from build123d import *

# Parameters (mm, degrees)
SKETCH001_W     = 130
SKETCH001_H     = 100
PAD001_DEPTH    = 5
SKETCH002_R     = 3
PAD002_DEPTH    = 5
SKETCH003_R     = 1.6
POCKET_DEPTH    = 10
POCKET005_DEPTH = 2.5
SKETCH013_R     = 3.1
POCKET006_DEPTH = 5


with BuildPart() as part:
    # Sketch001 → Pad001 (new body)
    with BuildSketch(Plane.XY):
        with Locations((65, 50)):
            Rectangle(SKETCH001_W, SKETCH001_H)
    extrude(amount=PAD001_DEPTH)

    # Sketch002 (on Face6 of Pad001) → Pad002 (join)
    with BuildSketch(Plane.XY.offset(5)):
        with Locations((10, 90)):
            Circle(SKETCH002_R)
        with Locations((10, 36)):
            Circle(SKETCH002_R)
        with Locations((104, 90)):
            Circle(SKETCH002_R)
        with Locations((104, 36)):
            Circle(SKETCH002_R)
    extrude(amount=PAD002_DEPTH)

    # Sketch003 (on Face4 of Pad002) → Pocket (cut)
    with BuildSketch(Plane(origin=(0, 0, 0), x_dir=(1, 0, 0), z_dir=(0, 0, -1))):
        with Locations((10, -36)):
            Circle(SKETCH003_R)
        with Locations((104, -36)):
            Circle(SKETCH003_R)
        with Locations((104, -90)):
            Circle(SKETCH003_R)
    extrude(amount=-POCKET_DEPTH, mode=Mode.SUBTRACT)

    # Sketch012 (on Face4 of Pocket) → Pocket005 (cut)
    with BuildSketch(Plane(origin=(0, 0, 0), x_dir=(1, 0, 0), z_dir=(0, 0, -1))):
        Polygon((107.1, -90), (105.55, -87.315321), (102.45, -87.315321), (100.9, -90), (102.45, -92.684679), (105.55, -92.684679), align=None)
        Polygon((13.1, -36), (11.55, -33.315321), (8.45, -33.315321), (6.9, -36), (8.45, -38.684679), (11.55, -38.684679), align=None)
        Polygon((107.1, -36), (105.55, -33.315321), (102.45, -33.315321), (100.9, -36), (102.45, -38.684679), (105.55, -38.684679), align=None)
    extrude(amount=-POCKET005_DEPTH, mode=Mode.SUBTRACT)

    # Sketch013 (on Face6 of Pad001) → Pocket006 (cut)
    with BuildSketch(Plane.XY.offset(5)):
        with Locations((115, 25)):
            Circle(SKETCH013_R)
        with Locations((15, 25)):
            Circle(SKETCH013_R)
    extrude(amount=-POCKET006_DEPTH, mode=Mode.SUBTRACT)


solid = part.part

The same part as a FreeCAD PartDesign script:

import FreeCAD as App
import Part
import Sketcher
from FreeCAD import Vector
Q = App.Units.Quantity


def add_polygon(sketch, points):
    """Adds a closed chain of lines whose ends are joined by coincident constraints."""
    first, n = sketch.GeometryCount, len(points)
    for a, b in zip(points, points[1:] + points[:1]):
        sketch.addGeometry(Part.LineSegment(App.Vector(*a, 0), App.Vector(*b, 0)), False)
    for i in range(n):
        sketch.addConstraint(Sketcher.Constraint("Coincident", first + i, 2, first + (i + 1) % n, 1))

doc = App.newDocument("Part")
body = doc.addObject("PartDesign::Body", "Body")

sketch1 = body.newObject("Sketcher::SketchObject", "Sketch")
sketch1.AttachmentSupport = (doc.getObject("XY_Plane"), [""])
sketch1.MapMode = "FlatFace"
add_polygon(sketch1, [(0, 100), (0, 0), (130, 0), (130, 100)])
sketch1.addConstraint([
    Sketcher.Constraint("Vertical", 0),
    Sketcher.Constraint("Horizontal", 1),
    Sketcher.Constraint("Vertical", 2),
    Sketcher.Constraint("Horizontal", 3),
    Sketcher.Constraint("Coincident", 0, 2, -1, 1),
    Sketcher.Constraint("DistanceX", 1, 1, 1, 2, 130.0),
    Sketcher.Constraint("DistanceY", 0, 2, 0, 1, 100.0),
])
pad1 = body.newObject("PartDesign::Pad", "Pad")
pad1.Profile = sketch1
pad1.Length = 5

sketch2 = body.newObject("Sketcher::SketchObject", "Sketch001")
sketch2.AttachmentSupport = (doc.getObject("XY_Plane"), [""])
sketch2.MapMode = "FlatFace"
sketch2.AttachmentOffset = App.Placement(Vector(0, 0, 5), App.Rotation())
sketch2.addGeometry([
    Part.Circle(Vector(10, 90, 0), Vector(0, 0, 1), 3),
    Part.Circle(Vector(10, 36, 0), Vector(0, 0, 1), 3),
    Part.Circle(Vector(104, 90, 0), Vector(0, 0, 1), 3),
    Part.Circle(Vector(104, 36, 0), Vector(0, 0, 1), 3),
], False)
sketch2.addConstraint([
    Sketcher.Constraint("Equal", 0, 1),
    Sketcher.Constraint("Equal", 1, 2),
    Sketcher.Constraint("Equal", 2, 3),
    Sketcher.Constraint("Horizontal", 0, 3, 2, 3),
    Sketcher.Constraint("Horizontal", 1, 3, 3, 3),
    Sketcher.Constraint("Vertical", 0, 3, 1, 3),
    Sketcher.Constraint("Vertical", 2, 3, 3, 3),
    Sketcher.Constraint("Diameter", 0, 6.0),
    Sketcher.Constraint("DistanceX", -1, 1, 0, 3, 10.0),
    Sketcher.Constraint("DistanceY", -1, 1, 0, 3, 90.0),
    Sketcher.Constraint("DistanceY", -1, 1, 1, 3, 36.0),
    Sketcher.Constraint("DistanceX", -1, 1, 2, 3, 104.0),
])
pad2 = body.newObject("PartDesign::Pad", "Pad001")
pad2.Profile = sketch2
pad2.Length = 5

sketch3 = body.newObject("Sketcher::SketchObject", "Sketch002")
sketch3.AttachmentSupport = (doc.getObject("XY_Plane"), [""])
sketch3.MapMode = "FlatFace"
sketch3.addGeometry([
    Part.Circle(Vector(10, 36, 0), Vector(0, 0, 1), 1.6),
    Part.Circle(Vector(104, 36, 0), Vector(0, 0, 1), 1.6),
    Part.Circle(Vector(104, 90, 0), Vector(0, 0, 1), 1.6),
], False)
sketch3.addConstraint([
    Sketcher.Constraint("Equal", 0, 1),
    Sketcher.Constraint("Equal", 1, 2),
    Sketcher.Constraint("Horizontal", 0, 3, 1, 3),
    Sketcher.Constraint("Vertical", 1, 3, 2, 3),
    Sketcher.Constraint("Diameter", 0, 3.2),
    Sketcher.Constraint("DistanceX", -1, 1, 0, 3, 10.0),
    Sketcher.Constraint("DistanceY", -1, 1, 0, 3, 36.0),
    Sketcher.Constraint("DistanceX", -1, 1, 1, 3, 104.0),
    Sketcher.Constraint("DistanceY", -1, 1, 2, 3, 90.0),
])
pocket1 = body.newObject("PartDesign::Pocket", "Pocket")
pocket1.Profile = sketch3
pocket1.Length = 10
pocket1.Reversed = True

sketch4 = body.newObject("Sketcher::SketchObject", "Sketch003")
sketch4.AttachmentSupport = (doc.getObject("XY_Plane"), [""])
sketch4.MapMode = "FlatFace"
add_polygon(sketch4, [(107.1, 90), (105.5, 87.3), (102.5, 87.3), (100.9, 90), (102.5, 92.7), (105.5, 92.7)])
add_polygon(sketch4, [(13.1, 36), (11.6, 33.3), (8.4, 33.3), (6.9, 36), (8.4, 38.7), (11.6, 38.7)])
add_polygon(sketch4, [(107.1, 36), (105.5, 33.3), (102.5, 33.3), (100.9, 36), (102.5, 38.7), (105.5, 38.7)])
sketch4.addConstraint([
    Sketcher.Constraint("Horizontal", 1),
    Sketcher.Constraint("Horizontal", 4),
    Sketcher.Constraint("Horizontal", 7),
    Sketcher.Constraint("Horizontal", 10),
    Sketcher.Constraint("Horizontal", 13),
    Sketcher.Constraint("Horizontal", 16),
    Sketcher.Constraint("Parallel", 0, 3),
    Sketcher.Constraint("Parallel", 2, 5),
    Sketcher.Constraint("Parallel", 3, 6),
    Sketcher.Constraint("Parallel", 5, 8),
    Sketcher.Constraint("Parallel", 6, 9),
    Sketcher.Constraint("Parallel", 8, 11),
    Sketcher.Constraint("Parallel", 9, 12),
    Sketcher.Constraint("Parallel", 11, 14),
    Sketcher.Constraint("Parallel", 12, 15),
    Sketcher.Constraint("Parallel", 14, 17),
    Sketcher.Constraint("Horizontal", 2, 2, 5, 2),
    Sketcher.Constraint("Horizontal", 8, 2, 11, 2),
    Sketcher.Constraint("Horizontal", 7, 2, 12, 2),
    Sketcher.Constraint("Horizontal", 11, 2, 14, 2),
    Sketcher.Constraint("Horizontal", 10, 2, 15, 2),
    Sketcher.Constraint("Horizontal", 14, 2, 17, 2),
    Sketcher.Constraint("Vertical", 1, 2, 3, 2),
    Sketcher.Constraint("Vertical", 0, 2, 4, 2),
    Sketcher.Constraint("Vertical", 7, 2, 9, 2),
    Sketcher.Constraint("Vertical", 4, 2, 12, 2),
    Sketcher.Constraint("Vertical", 3, 2, 13, 2),
    Sketcher.Constraint("Vertical", 2, 2, 14, 2),
    Sketcher.Constraint("Equal", 4, 7),
    Sketcher.Constraint("Angle", 0, Q("-119.999998 deg")),
    Sketcher.Constraint("DistanceX", 1, 2, 1, 1, 3.1),
    Sketcher.Constraint("DistanceY", -1, 1, 2, 2, 90.0),
    Sketcher.Constraint("DistanceY", -1, 1, 8, 2, 36.0),
    Sketcher.Constraint("DistanceX", 6, 2, 0, 2, 94.0),
    Sketcher.Constraint("Distance", 0, 3.1),
    Sketcher.Constraint("DistanceX", -1, 1, 2, 2, 100.9),
])
pocket2 = body.newObject("PartDesign::Pocket", "Pocket001")
pocket2.Profile = sketch4
pocket2.Length = 2.5
pocket2.Reversed = True

sketch5 = body.newObject("Sketcher::SketchObject", "Sketch004")
sketch5.AttachmentSupport = (doc.getObject("XY_Plane"), [""])
sketch5.MapMode = "FlatFace"
sketch5.AttachmentOffset = App.Placement(Vector(0, 0, 5), App.Rotation())
sketch5.addGeometry([
    Part.Circle(Vector(115, 25, 0), Vector(0, 0, 1), 3.1),
    Part.Circle(Vector(15, 25, 0), Vector(0, 0, 1), 3.1),
], False)
sketch5.addConstraint([
    Sketcher.Constraint("Equal", 0, 1),
    Sketcher.Constraint("Horizontal", 0, 3, 1, 3),
    Sketcher.Constraint("Diameter", 0, 6.2),
    Sketcher.Constraint("DistanceX", -1, 1, 0, 3, 115.0),
    Sketcher.Constraint("DistanceY", -1, 1, 0, 3, 25.0),
    Sketcher.Constraint("DistanceX", -1, 1, 1, 3, 15.0),
])
pocket3 = body.newObject("PartDesign::Pocket", "Pocket002")
pocket3.Profile = sketch5
pocket3.Length = 5

doc.recompute()
